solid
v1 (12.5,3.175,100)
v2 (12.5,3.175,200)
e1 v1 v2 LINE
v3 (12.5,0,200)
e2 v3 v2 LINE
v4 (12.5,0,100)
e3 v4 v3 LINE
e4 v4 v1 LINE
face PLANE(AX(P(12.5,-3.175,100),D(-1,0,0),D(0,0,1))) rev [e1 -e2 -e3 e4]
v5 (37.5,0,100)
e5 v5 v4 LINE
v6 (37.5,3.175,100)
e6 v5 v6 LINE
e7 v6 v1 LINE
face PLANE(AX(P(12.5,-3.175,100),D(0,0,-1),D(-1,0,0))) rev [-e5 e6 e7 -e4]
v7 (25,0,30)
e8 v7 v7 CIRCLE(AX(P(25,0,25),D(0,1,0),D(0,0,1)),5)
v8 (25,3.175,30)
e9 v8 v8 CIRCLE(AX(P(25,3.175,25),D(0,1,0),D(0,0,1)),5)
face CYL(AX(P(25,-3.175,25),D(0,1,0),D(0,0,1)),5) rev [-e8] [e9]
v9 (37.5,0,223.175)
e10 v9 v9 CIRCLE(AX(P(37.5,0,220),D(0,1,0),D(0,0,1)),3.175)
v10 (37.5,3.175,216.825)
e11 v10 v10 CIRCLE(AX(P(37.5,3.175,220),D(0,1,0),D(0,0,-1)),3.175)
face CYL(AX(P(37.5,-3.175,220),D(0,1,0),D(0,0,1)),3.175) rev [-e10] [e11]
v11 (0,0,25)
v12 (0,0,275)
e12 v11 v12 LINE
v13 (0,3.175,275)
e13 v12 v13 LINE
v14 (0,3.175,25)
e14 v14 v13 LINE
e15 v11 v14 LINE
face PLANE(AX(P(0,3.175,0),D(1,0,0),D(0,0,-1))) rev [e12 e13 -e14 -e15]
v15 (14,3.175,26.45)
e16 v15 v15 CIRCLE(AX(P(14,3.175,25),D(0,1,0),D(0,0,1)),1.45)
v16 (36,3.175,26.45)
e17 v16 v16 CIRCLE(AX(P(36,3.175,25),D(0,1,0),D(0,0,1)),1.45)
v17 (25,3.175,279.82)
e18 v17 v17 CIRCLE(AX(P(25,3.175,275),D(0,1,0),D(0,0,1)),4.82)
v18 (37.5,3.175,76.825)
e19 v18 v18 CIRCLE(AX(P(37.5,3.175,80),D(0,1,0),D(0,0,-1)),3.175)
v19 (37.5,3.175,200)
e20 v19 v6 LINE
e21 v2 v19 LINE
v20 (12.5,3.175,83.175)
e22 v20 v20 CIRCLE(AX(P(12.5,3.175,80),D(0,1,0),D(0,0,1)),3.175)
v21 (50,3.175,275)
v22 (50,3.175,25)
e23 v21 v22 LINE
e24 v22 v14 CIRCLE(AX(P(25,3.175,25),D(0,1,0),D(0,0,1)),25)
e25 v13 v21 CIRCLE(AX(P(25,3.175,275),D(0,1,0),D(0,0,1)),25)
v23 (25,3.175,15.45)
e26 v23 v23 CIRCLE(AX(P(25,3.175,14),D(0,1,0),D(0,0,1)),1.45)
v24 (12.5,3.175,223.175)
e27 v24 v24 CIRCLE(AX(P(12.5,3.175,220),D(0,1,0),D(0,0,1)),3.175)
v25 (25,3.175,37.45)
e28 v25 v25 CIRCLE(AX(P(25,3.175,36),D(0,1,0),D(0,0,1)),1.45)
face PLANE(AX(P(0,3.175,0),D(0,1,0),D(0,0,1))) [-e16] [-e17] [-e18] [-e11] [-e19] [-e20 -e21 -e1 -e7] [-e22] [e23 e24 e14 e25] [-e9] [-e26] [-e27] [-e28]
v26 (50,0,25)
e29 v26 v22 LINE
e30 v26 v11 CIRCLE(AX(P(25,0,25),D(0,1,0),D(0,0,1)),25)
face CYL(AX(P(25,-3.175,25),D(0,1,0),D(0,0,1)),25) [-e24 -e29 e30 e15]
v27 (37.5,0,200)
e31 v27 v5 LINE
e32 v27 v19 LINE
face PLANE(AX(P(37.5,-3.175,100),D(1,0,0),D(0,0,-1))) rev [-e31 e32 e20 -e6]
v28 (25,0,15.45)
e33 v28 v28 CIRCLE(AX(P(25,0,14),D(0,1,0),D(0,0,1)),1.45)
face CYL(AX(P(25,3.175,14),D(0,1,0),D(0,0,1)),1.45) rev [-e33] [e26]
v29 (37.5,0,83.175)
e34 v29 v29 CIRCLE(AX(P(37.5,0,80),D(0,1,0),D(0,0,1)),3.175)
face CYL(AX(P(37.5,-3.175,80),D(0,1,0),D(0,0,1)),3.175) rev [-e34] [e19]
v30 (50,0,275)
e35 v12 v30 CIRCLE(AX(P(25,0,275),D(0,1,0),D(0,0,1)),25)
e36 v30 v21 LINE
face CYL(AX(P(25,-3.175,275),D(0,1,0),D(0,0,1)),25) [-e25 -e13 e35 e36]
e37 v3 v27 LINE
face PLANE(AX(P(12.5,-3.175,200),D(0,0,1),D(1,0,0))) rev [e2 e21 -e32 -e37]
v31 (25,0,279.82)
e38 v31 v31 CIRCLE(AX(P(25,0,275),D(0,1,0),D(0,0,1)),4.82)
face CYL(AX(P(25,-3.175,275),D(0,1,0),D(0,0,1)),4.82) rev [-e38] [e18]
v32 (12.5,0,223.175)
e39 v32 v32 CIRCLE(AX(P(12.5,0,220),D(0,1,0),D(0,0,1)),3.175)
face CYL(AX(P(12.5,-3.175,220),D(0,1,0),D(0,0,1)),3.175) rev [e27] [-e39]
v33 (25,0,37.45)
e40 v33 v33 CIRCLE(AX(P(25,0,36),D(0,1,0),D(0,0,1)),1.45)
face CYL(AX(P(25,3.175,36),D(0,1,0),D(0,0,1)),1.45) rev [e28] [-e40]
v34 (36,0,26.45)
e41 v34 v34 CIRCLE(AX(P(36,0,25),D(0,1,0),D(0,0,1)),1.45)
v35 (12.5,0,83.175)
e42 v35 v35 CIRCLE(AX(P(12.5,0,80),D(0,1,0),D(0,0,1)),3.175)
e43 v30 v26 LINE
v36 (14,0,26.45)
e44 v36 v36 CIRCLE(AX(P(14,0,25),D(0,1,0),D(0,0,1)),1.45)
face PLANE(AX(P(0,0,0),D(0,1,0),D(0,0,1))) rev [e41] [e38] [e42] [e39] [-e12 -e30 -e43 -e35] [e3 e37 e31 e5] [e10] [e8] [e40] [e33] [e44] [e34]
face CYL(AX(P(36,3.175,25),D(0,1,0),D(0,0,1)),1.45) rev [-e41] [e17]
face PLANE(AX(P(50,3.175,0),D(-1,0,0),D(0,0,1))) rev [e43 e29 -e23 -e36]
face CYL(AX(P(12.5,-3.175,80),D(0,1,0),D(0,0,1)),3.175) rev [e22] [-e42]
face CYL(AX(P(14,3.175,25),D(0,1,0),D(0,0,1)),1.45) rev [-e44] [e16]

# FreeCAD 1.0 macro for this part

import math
import FreeCAD as App
import Part
import Sketcher

doc = App.newDocument("Part")
body = doc.addObject("PartDesign::Body", "Body")

sketch1 = body.newObject("Sketcher::SketchObject", "Sketch")
sketch1.AttachmentSupport = (doc.getObject("XZ_Plane"), [""])
sketch1.MapMode = "FlatFace"
sketch1.addGeometry(Part.LineSegment(App.Vector(0, 0, 0), App.Vector(0, 300, 0)), False)
sketch1.addGeometry(Part.LineSegment(App.Vector(0, 300, 0), App.Vector(50, 300, 0)), False)
sketch1.addGeometry(Part.LineSegment(App.Vector(50, 300, 0), App.Vector(50, 0, 0)), False)
sketch1.addGeometry(Part.LineSegment(App.Vector(50, 0, 0), App.Vector(0, 0, 0)), False)
sketch1.addConstraint(Sketcher.Constraint("Coincident", 0, 2, 1, 1))
sketch1.addConstraint(Sketcher.Constraint("Coincident", 1, 2, 2, 1))
sketch1.addConstraint(Sketcher.Constraint("Coincident", 2, 2, 3, 1))
sketch1.addConstraint(Sketcher.Constraint("Coincident", 3, 2, 0, 1))
sketch1.addConstraint(Sketcher.Constraint("Vertical", 0))
sketch1.addConstraint(Sketcher.Constraint("Horizontal", 1))
sketch1.addConstraint(Sketcher.Constraint("Vertical", 2))
sketch1.addConstraint(Sketcher.Constraint("Horizontal", 3))
sketch1.addConstraint(Sketcher.Constraint("Coincident", 3, 2, -1, 1))
sketch1.addConstraint(Sketcher.Constraint("DistanceX", 1, 1, 1, 2, 50.0))
sketch1.addConstraint(Sketcher.Constraint("DistanceY", 0, 1, 0, 2, 300.0))
pad1 = body.newObject("PartDesign::Pad", "Pad")
pad1.Profile = sketch1
pad1.Length = 3.175
pad1.Reversed = True

sketch2 = body.newObject("Sketcher::SketchObject", "Sketch001")
sketch2.AttachmentSupport = (doc.getObject("XZ_Plane"), [""])
sketch2.MapMode = "FlatFace"
sketch2.AttachmentOffset = App.Placement(App.Vector(0, 0, -3.175), App.Rotation())
sketch2.addGeometry(Part.ArcOfCircle(Part.Circle(App.Vector(25, 25, 0), App.Vector(0, 0, 1), 25), math.radians(-90), math.radians(0)), False)
sketch2.addGeometry(Part.LineSegment(App.Vector(50, 25, 0), App.Vector(50, 0, 0)), False)
sketch2.addGeometry(Part.LineSegment(App.Vector(50, 0, 0), App.Vector(25, 0, 0)), False)
sketch2.addGeometry(Part.LineSegment(App.Vector(0, 0, 0), App.Vector(0, 25, 0)), False)
sketch2.addGeometry(Part.ArcOfCircle(Part.Circle(App.Vector(25, 25, 0), App.Vector(0, 0, 1), 25), math.radians(180), math.radians(270)), False)
sketch2.addGeometry(Part.LineSegment(App.Vector(25, 0, 0), App.Vector(0, 0, 0)), False)
sketch2.addGeometry(Part.LineSegment(App.Vector(50, 300, 0), App.Vector(50, 275, 0)), False)
sketch2.addGeometry(Part.ArcOfCircle(Part.Circle(App.Vector(25, 275, 0), App.Vector(0, 0, 1), 25), math.radians(0), math.radians(90)), False)
sketch2.addGeometry(Part.LineSegment(App.Vector(25, 300, 0), App.Vector(50, 300, 0)), False)
sketch2.addGeometry(Part.ArcOfCircle(Part.Circle(App.Vector(25, 275, 0), App.Vector(0, 0, 1), 25), math.radians(90), math.radians(180)), False)
sketch2.addGeometry(Part.LineSegment(App.Vector(0, 275, 0), App.Vector(0, 300, 0)), False)
sketch2.addGeometry(Part.LineSegment(App.Vector(0, 300, 0), App.Vector(25, 300, 0)), False)
sketch2.addConstraint(Sketcher.Constraint("Tangent", 0, 2, 1, 1))
sketch2.addConstraint(Sketcher.Constraint("Coincident", 1, 2, 2, 1))
sketch2.addConstraint(Sketcher.Constraint("Tangent", 2, 2, 0, 1))
sketch2.addConstraint(Sketcher.Constraint("Tangent", 3, 2, 4, 1))
sketch2.addConstraint(Sketcher.Constraint("Tangent", 4, 2, 5, 1))
sketch2.addConstraint(Sketcher.Constraint("Coincident", 5, 2, 3, 1))
sketch2.addConstraint(Sketcher.Constraint("Tangent", 6, 2, 7, 1))
sketch2.addConstraint(Sketcher.Constraint("Tangent", 7, 2, 8, 1))
sketch2.addConstraint(Sketcher.Constraint("Coincident", 8, 2, 6, 1))
sketch2.addConstraint(Sketcher.Constraint("Tangent", 9, 2, 10, 1))
sketch2.addConstraint(Sketcher.Constraint("Coincident", 10, 2, 11, 1))
sketch2.addConstraint(Sketcher.Constraint("Tangent", 11, 2, 9, 1))
sketch2.addConstraint(Sketcher.Constraint("Vertical", 1))
sketch2.addConstraint(Sketcher.Constraint("Horizontal", 2))
sketch2.addConstraint(Sketcher.Constraint("Vertical", 3))
sketch2.addConstraint(Sketcher.Constraint("Horizontal", 5))
sketch2.addConstraint(Sketcher.Constraint("Vertical", 6))
sketch2.addConstraint(Sketcher.Constraint("Horizontal", 8))
sketch2.addConstraint(Sketcher.Constraint("Vertical", 10))
sketch2.addConstraint(Sketcher.Constraint("Horizontal", 11))
sketch2.addConstraint(Sketcher.Constraint("Coincident", 5, 2, -1, 1))
sketch2.addConstraint(Sketcher.Constraint("Coincident", 4, 3, 0, 3))
sketch2.addConstraint(Sketcher.Constraint("Coincident", 9, 3, 7, 3))
sketch2.addConstraint(Sketcher.Constraint("Equal", 0, 4))
sketch2.addConstraint(Sketcher.Constraint("Equal", 4, 7))
sketch2.addConstraint(Sketcher.Constraint("Equal", 7, 9))
sketch2.addConstraint(Sketcher.Constraint("PointOnObject", 9, 2, -2))
sketch2.addConstraint(Sketcher.Constraint("Radius", 0, 25.0))
sketch2.addConstraint(Sketcher.Constraint("DistanceY", -1, 1, 7, 3, 275.0))
pocket1 = body.newObject("PartDesign::Pocket", "Pocket")
pocket1.Profile = sketch2
pocket1.Length = 6.35
pocket1.Reversed = True

sketch3 = body.newObject("Sketcher::SketchObject", "Sketch002")
sketch3.AttachmentSupport = (doc.getObject("XZ_Plane"), [""])
sketch3.MapMode = "FlatFace"
sketch3.AttachmentOffset = App.Placement(App.Vector(0, 0, -3.175), App.Rotation())
sketch3.addGeometry(Part.Circle(App.Vector(25, 25, 0), App.Vector(0, 0, 1), 5), False)
sketch3.addGeometry(Part.Circle(App.Vector(25, 275, 0), App.Vector(0, 0, 1), 4.8), False)
sketch3.addGeometry(Part.Circle(App.Vector(25, 14, 0), App.Vector(0, 0, 1), 1), False)
sketch3.addGeometry(Part.Circle(App.Vector(14, 25, 0), App.Vector(0, 0, 1), 1), False)
sketch3.addGeometry(Part.Circle(App.Vector(25, 36, 0), App.Vector(0, 0, 1), 1), False)
sketch3.addGeometry(Part.Circle(App.Vector(36, 25, 0), App.Vector(0, 0, 1), 1), False)
sketch3.addConstraint(Sketcher.Constraint("Equal", 2, 3))
sketch3.addConstraint(Sketcher.Constraint("Equal", 3, 4))
sketch3.addConstraint(Sketcher.Constraint("Equal", 4, 5))
sketch3.addConstraint(Sketcher.Constraint("Horizontal", 0, 3, 3, 3))
sketch3.addConstraint(Sketcher.Constraint("Horizontal", 3, 3, 5, 3))
sketch3.addConstraint(Sketcher.Constraint("Vertical", 0, 3, 1, 3))
sketch3.addConstraint(Sketcher.Constraint("Vertical", 1, 3, 2, 3))
sketch3.addConstraint(Sketcher.Constraint("Vertical", 2, 3, 4, 3))
sketch3.addConstraint(Sketcher.Constraint("Diameter", 0, 10.0))
sketch3.addConstraint(Sketcher.Constraint("Diameter", 1, 9.64))
sketch3.addConstraint(Sketcher.Constraint("Diameter", 2, 2.05))
sketch3.addConstraint(Sketcher.Constraint("DistanceX", -1, 1, 0, 3, 25.0))
sketch3.addConstraint(Sketcher.Constraint("DistanceY", -1, 1, 0, 3, 25.0))
sketch3.addConstraint(Sketcher.Constraint("DistanceY", -1, 1, 1, 3, 275.0))
sketch3.addConstraint(Sketcher.Constraint("DistanceY", -1, 1, 2, 3, 14.0))
sketch3.addConstraint(Sketcher.Constraint("DistanceX", -1, 1, 3, 3, 14.0))
sketch3.addConstraint(Sketcher.Constraint("DistanceY", -1, 1, 4, 3, 36.0))
sketch3.addConstraint(Sketcher.Constraint("DistanceX", -1, 1, 5, 3, 36.0))
pocket2 = body.newObject("PartDesign::Pocket", "Pocket001")
pocket2.Profile = sketch3
pocket2.Length = 6.35
pocket2.Reversed = True

sketch4 = body.newObject("Sketcher::SketchObject", "Sketch003")
sketch4.AttachmentSupport = (doc.getObject("XZ_Plane"), [""])
sketch4.MapMode = "FlatFace"
sketch4.AttachmentOffset = App.Placement(App.Vector(0, 0, -3.175), App.Rotation())
sketch4.addGeometry(Part.Circle(App.Vector(12.5, 80, 0), App.Vector(0, 0, 1), 3.2), False)
sketch4.addGeometry(Part.Circle(App.Vector(12.5, 220, 0), App.Vector(0, 0, 1), 3.2), False)
sketch4.addGeometry(Part.Circle(App.Vector(37.5, 220, 0), App.Vector(0, 0, 1), 3.2), False)
sketch4.addGeometry(Part.Circle(App.Vector(37.5, 80, 0), App.Vector(0, 0, 1), 3.2), False)
sketch4.addGeometry(Part.LineSegment(App.Vector(12.5, 100, 0), App.Vector(12.5, 200, 0)), False)
sketch4.addGeometry(Part.LineSegment(App.Vector(12.5, 200, 0), App.Vector(37.5, 200, 0)), False)
sketch4.addGeometry(Part.LineSegment(App.Vector(37.5, 200, 0), App.Vector(37.5, 100, 0)), False)
sketch4.addGeometry(Part.LineSegment(App.Vector(37.5, 100, 0), App.Vector(12.5, 100, 0)), False)
sketch4.addConstraint(Sketcher.Constraint("Coincident", 4, 2, 5, 1))
sketch4.addConstraint(Sketcher.Constraint("Coincident", 5, 2, 6, 1))
sketch4.addConstraint(Sketcher.Constraint("Coincident", 6, 2, 7, 1))
sketch4.addConstraint(Sketcher.Constraint("Coincident", 7, 2, 4, 1))
sketch4.addConstraint(Sketcher.Constraint("Vertical", 4))
sketch4.addConstraint(Sketcher.Constraint("Horizontal", 5))
sketch4.addConstraint(Sketcher.Constraint("Vertical", 6))
sketch4.addConstraint(Sketcher.Constraint("Horizontal", 7))
sketch4.addConstraint(Sketcher.Constraint("Equal", 0, 1))
sketch4.addConstraint(Sketcher.Constraint("Equal", 1, 2))
sketch4.addConstraint(Sketcher.Constraint("Equal", 2, 3))
sketch4.addConstraint(Sketcher.Constraint("Horizontal", 1, 3, 2, 3))
sketch4.addConstraint(Sketcher.Constraint("Horizontal", 0, 3, 3, 3))
sketch4.addConstraint(Sketcher.Constraint("Vertical", 0, 3, 1, 3))
sketch4.addConstraint(Sketcher.Constraint("Vertical", 2, 3, 3, 3))
sketch4.addConstraint(Sketcher.Constraint("Vertical", 1, 3, 4, 2))
sketch4.addConstraint(Sketcher.Constraint("Vertical", 3, 3, 5, 2))
sketch4.addConstraint(Sketcher.Constraint("Diameter", 0, 6.35))
sketch4.addConstraint(Sketcher.Constraint("DistanceX", 5, 1, 5, 2, 25.0))
sketch4.addConstraint(Sketcher.Constraint("DistanceY", 4, 1, 4, 2, 100.0))
sketch4.addConstraint(Sketcher.Constraint("DistanceY", -1, 1, 0, 3, 80.0))
sketch4.addConstraint(Sketcher.Constraint("DistanceY", -1, 1, 1, 3, 220.0))
sketch4.addConstraint(Sketcher.Constraint("DistanceY", -1, 1, 4, 2, 200.0))
sketch4.addConstraint(Sketcher.Constraint("DistanceX", -1, 1, 0, 3, 12.5))
pocket3 = body.newObject("PartDesign::Pocket", "Pocket002")
pocket3.Profile = sketch4
pocket3.Length = 6.35
pocket3.Reversed = True

sketch5 = body.newObject("Sketcher::SketchObject", "Sketch004")
sketch5.AttachmentSupport = (doc.getObject("XZ_Plane"), [""])
sketch5.MapMode = "FlatFace"
sketch5.AttachmentOffset = App.Placement(App.Vector(0, 0, -3.175), App.Rotation())
sketch5.addGeometry(Part.Circle(App.Vector(14, 25, 0), App.Vector(0, 0, 1), 1.4), False)
sketch5.addGeometry(Part.Circle(App.Vector(25, 14, 0), App.Vector(0, 0, 1), 1.4), False)
sketch5.addGeometry(Part.Circle(App.Vector(36, 25, 0), App.Vector(0, 0, 1), 1.4), False)
sketch5.addGeometry(Part.Circle(App.Vector(25, 36, 0), App.Vector(0, 0, 1), 1.4), False)
sketch5.addConstraint(Sketcher.Constraint("Equal", 0, 1))
sketch5.addConstraint(Sketcher.Constraint("Equal", 1, 2))
sketch5.addConstraint(Sketcher.Constraint("Equal", 2, 3))
sketch5.addConstraint(Sketcher.Constraint("Horizontal", 0, 3, 2, 3))
sketch5.addConstraint(Sketcher.Constraint("Vertical", 1, 3, 3, 3))
sketch5.addConstraint(Sketcher.Constraint("Diameter", 0, 2.9))
sketch5.addConstraint(Sketcher.Constraint("DistanceX", -1, 1, 0, 3, 14.0))
sketch5.addConstraint(Sketcher.Constraint("DistanceY", -1, 1, 0, 3, 25.0))
sketch5.addConstraint(Sketcher.Constraint("DistanceX", -1, 1, 1, 3, 25.0))
sketch5.addConstraint(Sketcher.Constraint("DistanceY", -1, 1, 1, 3, 14.0))
sketch5.addConstraint(Sketcher.Constraint("DistanceX", -1, 1, 2, 3, 36.0))
sketch5.addConstraint(Sketcher.Constraint("DistanceY", -1, 1, 3, 3, 36.0))
doc.recompute()
hole = body.newObject("PartDesign::Hole", "Hole")
hole.Profile = sketch5
hole.ThreadType = "None"
hole.Diameter = 2.9
hole.DepthType = "ThroughAll"
hole.Reversed = True

doc.recompute()
